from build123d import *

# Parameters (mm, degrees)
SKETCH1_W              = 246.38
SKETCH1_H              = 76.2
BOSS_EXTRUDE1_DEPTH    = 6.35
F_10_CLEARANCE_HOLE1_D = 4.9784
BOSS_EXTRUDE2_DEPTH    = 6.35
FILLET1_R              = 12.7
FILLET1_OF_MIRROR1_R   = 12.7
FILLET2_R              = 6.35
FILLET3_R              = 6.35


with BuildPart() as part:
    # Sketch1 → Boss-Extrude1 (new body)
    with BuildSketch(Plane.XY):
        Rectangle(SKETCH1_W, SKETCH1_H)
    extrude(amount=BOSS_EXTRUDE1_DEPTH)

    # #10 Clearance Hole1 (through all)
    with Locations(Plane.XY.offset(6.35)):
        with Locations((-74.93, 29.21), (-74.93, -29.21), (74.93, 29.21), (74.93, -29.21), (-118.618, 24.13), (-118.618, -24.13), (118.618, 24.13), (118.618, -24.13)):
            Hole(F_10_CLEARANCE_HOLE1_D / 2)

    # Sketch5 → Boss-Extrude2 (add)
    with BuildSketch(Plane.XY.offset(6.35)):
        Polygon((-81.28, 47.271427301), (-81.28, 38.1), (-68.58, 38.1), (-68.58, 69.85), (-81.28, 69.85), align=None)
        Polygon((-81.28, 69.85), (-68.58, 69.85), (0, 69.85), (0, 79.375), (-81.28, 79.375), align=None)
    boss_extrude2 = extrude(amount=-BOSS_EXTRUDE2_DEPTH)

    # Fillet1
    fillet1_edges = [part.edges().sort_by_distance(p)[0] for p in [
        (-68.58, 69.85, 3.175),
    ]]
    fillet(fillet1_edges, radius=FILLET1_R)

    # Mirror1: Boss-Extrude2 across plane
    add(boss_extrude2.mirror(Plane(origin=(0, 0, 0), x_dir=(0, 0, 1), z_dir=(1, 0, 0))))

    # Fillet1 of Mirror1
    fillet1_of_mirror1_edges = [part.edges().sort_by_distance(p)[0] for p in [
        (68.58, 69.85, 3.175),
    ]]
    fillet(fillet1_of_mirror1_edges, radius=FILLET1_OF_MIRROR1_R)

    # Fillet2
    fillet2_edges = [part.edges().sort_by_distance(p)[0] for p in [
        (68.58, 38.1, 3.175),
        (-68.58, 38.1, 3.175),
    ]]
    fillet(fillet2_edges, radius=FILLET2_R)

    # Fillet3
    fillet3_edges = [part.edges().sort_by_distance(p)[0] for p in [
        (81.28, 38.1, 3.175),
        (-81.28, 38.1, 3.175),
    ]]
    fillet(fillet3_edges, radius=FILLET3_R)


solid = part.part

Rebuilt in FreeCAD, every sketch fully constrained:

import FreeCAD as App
import Part
import Sketcher
from FreeCAD import Vector
Q = App.Units.Quantity


def edges_at(feature, points):
    """Names of the edges that pass closest to the given points."""
    edges = feature.Shape.Edges
    near = lambda p: min(range(len(edges)), key=lambda i: edges[i].distToShape(Part.Vertex(*p))[0])
    return sorted({f"Edge{near(p) + 1}" for p in points})

doc = App.newDocument("Part")
body = doc.addObject("PartDesign::Body", "Body")

# Sketch on XY plane
sketch1 = doc.addObject("Sketcher::SketchObject", "Sketch")
body.addObject(sketch1)
sketch1.AttachmentSupport = (doc.XY_Plane, [""])
sketch1.MapMode = "FlatFace"
sketch1.addGeometry([
    Part.LineSegment(Vector(-123.19, 38.1, 0), Vector(-123.19, -38.1, 0)),
    Part.LineSegment(Vector(-123.19, -38.1, 0), Vector(123.19, -38.1, 0)),
    Part.LineSegment(Vector(123.19, -38.1, 0), Vector(123.19, 38.1, 0)),
    Part.LineSegment(Vector(123.19, 38.1, 0), Vector(-123.19, 38.1, 0)),
], False)
sketch1.addConstraint([
    Sketcher.Constraint("Coincident", 0, 2, 1, 1),
    Sketcher.Constraint("Coincident", 1, 2, 2, 1),
    Sketcher.Constraint("Coincident", 2, 2, 3, 1),
    Sketcher.Constraint("Coincident", 3, 2, 0, 1),
    Sketcher.Constraint("Vertical", 0),
    Sketcher.Constraint("Horizontal", 1),
    Sketcher.Constraint("Vertical", 2),
    Sketcher.Constraint("Horizontal", 3),
    Sketcher.Constraint("Symmetric", 0, 2, 2, 2, -1, 1),
    Sketcher.Constraint("DistanceY", 0, 2, 0, 1, Q("3 in")),
    Sketcher.Constraint("DistanceX", 1, 1, 1, 2, Q("9.7 in")),
])
pad1 = doc.addObject("PartDesign::Pad", "Pad")
body.addObject(pad1)
pad1.Profile = sketch1
pad1.Length = Q("0.25 in")

# Sketch on XY plane
sketch2 = doc.addObject("Sketcher::SketchObject", "Sketch001")
body.addObject(sketch2)
sketch2.AttachmentSupport = (doc.XY_Plane, [""])
sketch2.MapMode = "FlatFace"
sketch2.AttachmentOffset = App.Placement(Vector(0, 0, 0.25 * 25.4), App.Rotation())
sketch2.addGeometry([
    Part.Circle(Vector(-74.93, 29.21, 0), Vector(0, 0, 1), 2.4892),  # 0
    Part.Circle(Vector(-74.93, -29.21, 0), Vector(0, 0, 1), 2.4892),  # 1
    Part.Circle(Vector(74.93, 29.21, 0), Vector(0, 0, 1), 2.4892),  # 2
    Part.Circle(Vector(74.93, -29.21, 0), Vector(0, 0, 1), 2.4892),  # 3
    Part.Circle(Vector(-118.618, 24.13, 0), Vector(0, 0, 1), 2.4892),  # 4
    Part.Circle(Vector(-118.618, -24.13, 0), Vector(0, 0, 1), 2.4892),  # 5
    Part.Circle(Vector(118.618, 24.13, 0), Vector(0, 0, 1), 2.4892),  # 6
    Part.Circle(Vector(118.618, -24.13, 0), Vector(0, 0, 1), 2.4892),  # 7
], False)
sketch2.addConstraint([
    Sketcher.Constraint("Equal", 0, 1),
    Sketcher.Constraint("Equal", 1, 2),
    Sketcher.Constraint("Equal", 2, 3),
    Sketcher.Constraint("Equal", 3, 4),
    Sketcher.Constraint("Equal", 4, 5),
    Sketcher.Constraint("Equal", 5, 6),
    Sketcher.Constraint("Equal", 6, 7),
    Sketcher.Constraint("Symmetric", 1, 3, 2, 3, -1, 1),
    Sketcher.Constraint("Symmetric", 0, 3, 3, 3, -1, 1),
    Sketcher.Constraint("Symmetric", 5, 3, 6, 3, -1, 1),
    Sketcher.Constraint("Symmetric", 4, 3, 7, 3, -1, 1),
    Sketcher.Constraint("Symmetric", 0, 3, 2, 3, -2),
    Sketcher.Constraint("Symmetric", 4, 3, 6, 3, -2),
    Sketcher.Constraint("Diameter", 0, Q("0.196 in")),
    Sketcher.Constraint("DistanceY", 1, 3, 0, 3, Q("2.3 in")),
    Sketcher.Constraint("DistanceX", 0, 3, 2, 3, Q("5.9 in")),
    Sketcher.Constraint("DistanceY", 4, 3, 0, 3, Q("0.2 in")),
    Sketcher.Constraint("DistanceX", 4, 3, -1, 1, Q("4.67 in")),
])
doc.recompute()
hole = doc.addObject("PartDesign::Hole", "Hole")
body.addObject(hole)
hole.Profile = sketch2
hole.ThreadType = "None"
hole.Diameter = Q("0.196 in")
hole.DepthType = "ThroughAll"

# Sketch on XY plane
sketch3 = doc.addObject("Sketcher::SketchObject", "Sketch002")
body.addObject(sketch3)
sketch3.AttachmentSupport = (doc.XY_Plane, [""])
sketch3.MapMode = "FlatFace"
sketch3.AttachmentOffset = App.Placement(Vector(0, 0, 0.25 * 25.4), App.Rotation())
sketch3.addGeometry([
    Part.LineSegment(Vector(-81.28, 38.1, 0), Vector(-68.58, 38.1, 0)),  # 0
    Part.LineSegment(Vector(-68.58, 38.1, 0), Vector(-68.58, 69.85, 0)),  # 1
    Part.LineSegment(Vector(-68.58, 69.85, 0), Vector(0, 69.85, 0)),  # 2
    Part.LineSegment(Vector(0, 69.85, 0), Vector(0, 79.375, 0)),  # 3
    Part.LineSegment(Vector(0, 79.375, 0), Vector(-81.28, 79.375, 0)),  # 4
    Part.LineSegment(Vector(-81.28, 79.375, 0), Vector(-81.28, 38.1, 0)),  # 5
], False)
sketch3.addConstraint([
    Sketcher.Constraint("Coincident", 0, 2, 1, 1),
    Sketcher.Constraint("Coincident", 1, 2, 2, 1),
    Sketcher.Constraint("Coincident", 2, 2, 3, 1),
    Sketcher.Constraint("Coincident", 3, 2, 4, 1),
    Sketcher.Constraint("Coincident", 4, 2, 5, 1),
    Sketcher.Constraint("Coincident", 5, 2, 0, 1),
    Sketcher.Constraint("Horizontal", 0),
    Sketcher.Constraint("Vertical", 1),
    Sketcher.Constraint("Horizontal", 2),
    Sketcher.Constraint("Vertical", 3),
    Sketcher.Constraint("Horizontal", 4),
    Sketcher.Constraint("Vertical", 5),
    Sketcher.Constraint("PointOnObject", 2, 2, -2),
    Sketcher.Constraint("DistanceX", 0, 1, 0, 2, Q("0.5 in")),
    Sketcher.Constraint("DistanceX", 2, 1, 2, 2, Q("2.7 in")),
    Sketcher.Constraint("DistanceY", 1, 1, 1, 2, Q("1.25 in")),
    Sketcher.Constraint("DistanceY", -1, 1, 0, 2, Q("1.5 in")),
    Sketcher.Constraint("DistanceY", 3, 1, 3, 2, Q("0.375 in")),
])
pad2 = doc.addObject("PartDesign::Pad", "Pad001")
body.addObject(pad2)
pad2.Profile = sketch3
pad2.Length = Q("0.25 in")
pad2.Reversed = True
doc.recompute()

fillet = doc.addObject("PartDesign::Fillet", "Fillet")
body.addObject(fillet)
fillet.Base = (pad2, edges_at(pad2, [(-68.58, 69.85, 3.175)]))
fillet.Radius = Q("0.5 in")
doc.recompute()

mirrored = doc.addObject("PartDesign::Mirrored", "Mirrored")
body.addObject(mirrored)
mirrored.Originals = [pad2]
mirrored.MirrorPlane = (doc.YZ_Plane, [""])
body.Tip = mirrored
doc.recompute()

fillet2 = doc.addObject("PartDesign::Fillet", "Fillet001")
body.addObject(fillet2)
fillet2.Base = (mirrored, edges_at(mirrored, [(68.58, 69.85, 3.175)]))
fillet2.Radius = Q("0.5 in")
doc.recompute()

fillet3 = doc.addObject("PartDesign::Fillet", "Fillet002")
body.addObject(fillet3)
fillet3.Base = (fillet2, edges_at(fillet2, [(68.58, 38.1, 3.175), (-68.58, 38.1, 3.175)]))
fillet3.Radius = Q("0.25 in")
doc.recompute()

fillet4 = doc.addObject("PartDesign::Fillet", "Fillet003")
body.addObject(fillet4)
fillet4.Base = (fillet3, edges_at(fillet3, [(81.28, 38.1, 3.175), (-81.28, 38.1, 3.175)]))
fillet4.Radius = Q("0.25 in")

doc.recompute()
